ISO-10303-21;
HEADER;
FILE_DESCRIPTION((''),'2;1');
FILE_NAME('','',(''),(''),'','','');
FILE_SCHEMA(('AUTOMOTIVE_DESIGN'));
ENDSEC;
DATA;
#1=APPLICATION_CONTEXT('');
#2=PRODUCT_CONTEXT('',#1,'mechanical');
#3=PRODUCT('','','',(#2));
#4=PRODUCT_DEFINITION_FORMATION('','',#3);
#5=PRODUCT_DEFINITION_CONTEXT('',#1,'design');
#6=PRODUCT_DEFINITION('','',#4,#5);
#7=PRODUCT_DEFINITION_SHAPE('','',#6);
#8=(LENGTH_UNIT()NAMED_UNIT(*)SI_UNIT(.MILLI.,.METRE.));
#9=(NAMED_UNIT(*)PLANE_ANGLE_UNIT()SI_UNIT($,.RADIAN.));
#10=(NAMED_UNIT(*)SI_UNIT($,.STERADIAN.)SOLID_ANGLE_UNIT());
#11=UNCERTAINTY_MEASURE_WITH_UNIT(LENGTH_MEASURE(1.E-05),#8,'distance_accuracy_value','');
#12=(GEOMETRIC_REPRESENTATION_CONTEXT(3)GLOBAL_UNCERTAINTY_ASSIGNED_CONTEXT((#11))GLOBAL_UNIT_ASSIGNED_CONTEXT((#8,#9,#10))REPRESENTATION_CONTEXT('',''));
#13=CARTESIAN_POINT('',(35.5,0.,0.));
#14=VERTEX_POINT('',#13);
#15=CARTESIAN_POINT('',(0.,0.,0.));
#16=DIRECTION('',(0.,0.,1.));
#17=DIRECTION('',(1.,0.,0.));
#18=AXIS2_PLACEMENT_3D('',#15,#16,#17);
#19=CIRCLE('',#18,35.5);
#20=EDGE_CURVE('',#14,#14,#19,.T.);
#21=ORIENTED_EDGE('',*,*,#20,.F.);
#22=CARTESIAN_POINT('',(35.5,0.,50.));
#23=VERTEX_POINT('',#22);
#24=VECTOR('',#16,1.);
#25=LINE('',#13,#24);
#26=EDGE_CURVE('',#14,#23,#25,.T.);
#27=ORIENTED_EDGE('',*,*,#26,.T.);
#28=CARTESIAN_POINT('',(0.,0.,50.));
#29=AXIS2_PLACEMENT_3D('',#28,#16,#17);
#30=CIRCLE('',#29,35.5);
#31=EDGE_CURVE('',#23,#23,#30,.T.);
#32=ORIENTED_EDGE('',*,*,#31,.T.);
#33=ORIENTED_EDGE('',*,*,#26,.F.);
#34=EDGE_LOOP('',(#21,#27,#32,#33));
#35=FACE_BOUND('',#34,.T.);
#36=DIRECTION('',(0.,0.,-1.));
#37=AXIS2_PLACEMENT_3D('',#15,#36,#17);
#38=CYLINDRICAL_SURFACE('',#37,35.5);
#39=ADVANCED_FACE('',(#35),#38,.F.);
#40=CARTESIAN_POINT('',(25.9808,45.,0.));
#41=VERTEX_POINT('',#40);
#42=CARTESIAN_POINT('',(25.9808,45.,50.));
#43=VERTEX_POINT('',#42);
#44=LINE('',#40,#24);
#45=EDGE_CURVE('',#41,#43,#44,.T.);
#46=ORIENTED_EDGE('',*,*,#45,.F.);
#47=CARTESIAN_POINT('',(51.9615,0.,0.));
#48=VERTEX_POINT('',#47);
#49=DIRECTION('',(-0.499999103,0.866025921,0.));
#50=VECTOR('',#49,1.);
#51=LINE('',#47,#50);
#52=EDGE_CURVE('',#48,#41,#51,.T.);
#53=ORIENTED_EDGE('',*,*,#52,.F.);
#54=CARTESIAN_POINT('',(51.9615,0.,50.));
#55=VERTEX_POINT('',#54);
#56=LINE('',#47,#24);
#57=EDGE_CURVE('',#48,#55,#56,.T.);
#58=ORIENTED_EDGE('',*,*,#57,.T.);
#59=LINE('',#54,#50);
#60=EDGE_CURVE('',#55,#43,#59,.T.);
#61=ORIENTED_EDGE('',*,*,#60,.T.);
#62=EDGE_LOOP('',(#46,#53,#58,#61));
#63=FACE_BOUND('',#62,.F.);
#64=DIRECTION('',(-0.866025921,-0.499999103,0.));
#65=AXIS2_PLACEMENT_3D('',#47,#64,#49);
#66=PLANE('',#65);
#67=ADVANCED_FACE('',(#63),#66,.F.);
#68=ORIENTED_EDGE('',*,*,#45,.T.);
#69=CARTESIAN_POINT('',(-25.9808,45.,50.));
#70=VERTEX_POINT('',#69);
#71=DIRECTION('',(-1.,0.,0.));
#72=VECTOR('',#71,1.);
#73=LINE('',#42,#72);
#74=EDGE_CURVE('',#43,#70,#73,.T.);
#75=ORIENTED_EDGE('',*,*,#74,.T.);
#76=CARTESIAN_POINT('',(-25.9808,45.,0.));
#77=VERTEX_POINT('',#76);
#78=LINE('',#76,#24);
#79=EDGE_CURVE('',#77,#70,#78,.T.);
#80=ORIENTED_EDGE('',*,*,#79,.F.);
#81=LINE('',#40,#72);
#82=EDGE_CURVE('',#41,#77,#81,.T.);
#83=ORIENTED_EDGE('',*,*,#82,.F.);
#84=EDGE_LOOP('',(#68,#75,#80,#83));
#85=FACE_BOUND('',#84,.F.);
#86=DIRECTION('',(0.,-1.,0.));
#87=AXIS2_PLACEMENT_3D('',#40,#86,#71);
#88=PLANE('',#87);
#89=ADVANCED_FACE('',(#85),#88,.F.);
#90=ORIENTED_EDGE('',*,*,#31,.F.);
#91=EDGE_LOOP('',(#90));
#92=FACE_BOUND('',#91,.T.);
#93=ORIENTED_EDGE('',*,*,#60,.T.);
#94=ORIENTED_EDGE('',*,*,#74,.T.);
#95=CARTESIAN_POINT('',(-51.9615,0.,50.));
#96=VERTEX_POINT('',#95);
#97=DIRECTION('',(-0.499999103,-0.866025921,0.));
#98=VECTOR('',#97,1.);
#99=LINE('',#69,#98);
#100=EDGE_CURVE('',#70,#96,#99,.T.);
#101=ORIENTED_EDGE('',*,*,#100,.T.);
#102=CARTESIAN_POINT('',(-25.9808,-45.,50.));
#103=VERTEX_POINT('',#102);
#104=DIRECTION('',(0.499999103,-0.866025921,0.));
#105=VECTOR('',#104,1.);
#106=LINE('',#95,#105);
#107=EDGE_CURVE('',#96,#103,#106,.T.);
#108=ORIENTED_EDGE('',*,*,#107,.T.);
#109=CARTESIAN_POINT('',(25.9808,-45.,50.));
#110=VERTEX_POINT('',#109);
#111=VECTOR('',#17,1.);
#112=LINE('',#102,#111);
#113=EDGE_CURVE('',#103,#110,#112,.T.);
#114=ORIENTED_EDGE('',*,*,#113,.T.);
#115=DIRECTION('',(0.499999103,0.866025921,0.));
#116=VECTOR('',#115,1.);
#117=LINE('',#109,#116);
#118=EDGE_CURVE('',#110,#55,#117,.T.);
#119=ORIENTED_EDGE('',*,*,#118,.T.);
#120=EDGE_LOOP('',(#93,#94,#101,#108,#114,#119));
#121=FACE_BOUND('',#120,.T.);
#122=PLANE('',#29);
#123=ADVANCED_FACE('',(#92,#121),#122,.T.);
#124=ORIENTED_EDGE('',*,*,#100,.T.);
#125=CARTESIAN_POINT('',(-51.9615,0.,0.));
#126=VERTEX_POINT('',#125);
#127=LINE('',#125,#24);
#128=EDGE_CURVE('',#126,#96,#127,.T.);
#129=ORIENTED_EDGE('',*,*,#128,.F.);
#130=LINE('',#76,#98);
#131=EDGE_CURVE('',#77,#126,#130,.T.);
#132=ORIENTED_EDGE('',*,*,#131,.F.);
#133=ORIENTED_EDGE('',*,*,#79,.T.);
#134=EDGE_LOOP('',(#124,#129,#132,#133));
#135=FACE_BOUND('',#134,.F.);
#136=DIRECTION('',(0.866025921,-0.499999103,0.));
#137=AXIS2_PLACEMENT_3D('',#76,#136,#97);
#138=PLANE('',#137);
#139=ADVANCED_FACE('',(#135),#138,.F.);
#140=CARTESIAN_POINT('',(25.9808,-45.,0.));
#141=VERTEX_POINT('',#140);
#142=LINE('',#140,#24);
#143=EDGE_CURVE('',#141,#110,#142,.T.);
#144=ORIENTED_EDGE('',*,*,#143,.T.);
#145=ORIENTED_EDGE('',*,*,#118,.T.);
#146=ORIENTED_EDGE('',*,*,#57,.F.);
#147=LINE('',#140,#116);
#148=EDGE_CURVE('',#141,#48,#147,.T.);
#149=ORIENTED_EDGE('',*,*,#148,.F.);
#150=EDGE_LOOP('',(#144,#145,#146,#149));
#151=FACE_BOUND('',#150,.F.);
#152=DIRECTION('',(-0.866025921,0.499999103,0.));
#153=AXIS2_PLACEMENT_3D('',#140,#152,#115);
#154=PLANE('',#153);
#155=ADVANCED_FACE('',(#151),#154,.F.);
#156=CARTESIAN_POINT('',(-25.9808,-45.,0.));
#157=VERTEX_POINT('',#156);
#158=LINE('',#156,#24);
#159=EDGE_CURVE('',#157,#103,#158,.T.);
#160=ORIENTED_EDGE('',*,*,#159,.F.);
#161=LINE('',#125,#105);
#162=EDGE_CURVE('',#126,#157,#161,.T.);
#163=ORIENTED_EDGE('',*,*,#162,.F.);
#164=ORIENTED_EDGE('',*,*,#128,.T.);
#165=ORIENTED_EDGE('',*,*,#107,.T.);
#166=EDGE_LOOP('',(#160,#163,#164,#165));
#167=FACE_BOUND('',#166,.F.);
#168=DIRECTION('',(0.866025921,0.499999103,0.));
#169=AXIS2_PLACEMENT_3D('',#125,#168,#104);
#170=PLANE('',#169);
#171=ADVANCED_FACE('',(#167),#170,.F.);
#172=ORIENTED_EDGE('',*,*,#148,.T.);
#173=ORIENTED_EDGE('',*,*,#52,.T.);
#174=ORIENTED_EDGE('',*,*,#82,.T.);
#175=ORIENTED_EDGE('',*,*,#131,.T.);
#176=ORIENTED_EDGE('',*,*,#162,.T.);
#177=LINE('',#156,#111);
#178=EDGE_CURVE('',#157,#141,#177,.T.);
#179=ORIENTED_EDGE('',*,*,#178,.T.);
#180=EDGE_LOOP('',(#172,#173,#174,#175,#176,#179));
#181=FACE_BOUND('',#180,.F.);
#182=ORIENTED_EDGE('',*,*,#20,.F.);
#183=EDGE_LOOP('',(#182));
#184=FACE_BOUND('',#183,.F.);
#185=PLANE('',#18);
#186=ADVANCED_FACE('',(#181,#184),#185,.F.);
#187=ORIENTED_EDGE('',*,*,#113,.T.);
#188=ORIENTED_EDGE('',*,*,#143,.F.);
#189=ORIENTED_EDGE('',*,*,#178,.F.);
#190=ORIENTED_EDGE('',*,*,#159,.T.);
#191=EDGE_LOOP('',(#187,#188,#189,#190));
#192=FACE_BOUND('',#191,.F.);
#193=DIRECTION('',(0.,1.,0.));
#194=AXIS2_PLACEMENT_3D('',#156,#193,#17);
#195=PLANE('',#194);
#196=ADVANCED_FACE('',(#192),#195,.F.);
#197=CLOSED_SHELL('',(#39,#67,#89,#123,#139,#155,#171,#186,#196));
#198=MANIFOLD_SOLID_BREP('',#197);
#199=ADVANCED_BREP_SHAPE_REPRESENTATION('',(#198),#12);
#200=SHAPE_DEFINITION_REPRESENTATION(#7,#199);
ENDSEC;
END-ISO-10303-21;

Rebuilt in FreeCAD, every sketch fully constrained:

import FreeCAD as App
import Part
import Sketcher
from FreeCAD import Vector
Q = App.Units.Quantity


def add_polygon(sketch, points):
    """Adds a closed chain of lines whose ends are joined by coincident constraints."""
    first, n = sketch.GeometryCount, len(points)
    for a, b in zip(points, points[1:] + points[:1]):
        sketch.addGeometry(Part.LineSegment(App.Vector(*a, 0), App.Vector(*b, 0)), False)
    for i in range(n):
        sketch.addConstraint(Sketcher.Constraint("Coincident", first + i, 2, first + (i + 1) % n, 1))

doc = App.newDocument("Part")
body = doc.addObject("PartDesign::Body", "Body")

# Sketch on XY plane
sketch1 = body.newObject("Sketcher::SketchObject", "Sketch")
sketch1.AttachmentSupport = (doc.getObject("XY_Plane"), [""])
sketch1.MapMode = "FlatFace"
add_polygon(sketch1, [(26, 45), (-26, 45), (-52, 0), (-26, -45), (26, -45), (52, 0)])  # lines 0-5
sketch1.addGeometry(Part.Circle(Vector(0, 0, 0), Vector(0, 0, 1), 36), False)  # 6
sketch1.addConstraint([
    Sketcher.Constraint("Horizontal", 0),
    Sketcher.Constraint("Horizontal", 3),
    Sketcher.Constraint("Coincident", 6, 3, -1, 1),
    Sketcher.Constraint("Symmetric", 0, 2, 3, 2, -1, 1),
    Sketcher.Constraint("Symmetric", 1, 2, 4, 2, -1, 1),
    Sketcher.Constraint("PointOnObject", 1, 2, -1),
    Sketcher.Constraint("Parallel", 2, 5),
    Sketcher.Constraint("Vertical", 0, 2, 2, 2),
    Sketcher.Constraint("Diameter", 6, Q("71 mm")),
    Sketcher.Constraint("Angle", 1, Q("-120 deg")),
    Sketcher.Constraint("DistanceY", -1, 1, 0, 2, Q("45 mm")),
    Sketcher.Constraint("DistanceX", 0, 2, 0, 1, Q("51.9616 mm")),
])
pad1 = body.newObject("PartDesign::Pad", "Pad")
pad1.Profile = sketch1
pad1.Length = 50

doc.recompute()
